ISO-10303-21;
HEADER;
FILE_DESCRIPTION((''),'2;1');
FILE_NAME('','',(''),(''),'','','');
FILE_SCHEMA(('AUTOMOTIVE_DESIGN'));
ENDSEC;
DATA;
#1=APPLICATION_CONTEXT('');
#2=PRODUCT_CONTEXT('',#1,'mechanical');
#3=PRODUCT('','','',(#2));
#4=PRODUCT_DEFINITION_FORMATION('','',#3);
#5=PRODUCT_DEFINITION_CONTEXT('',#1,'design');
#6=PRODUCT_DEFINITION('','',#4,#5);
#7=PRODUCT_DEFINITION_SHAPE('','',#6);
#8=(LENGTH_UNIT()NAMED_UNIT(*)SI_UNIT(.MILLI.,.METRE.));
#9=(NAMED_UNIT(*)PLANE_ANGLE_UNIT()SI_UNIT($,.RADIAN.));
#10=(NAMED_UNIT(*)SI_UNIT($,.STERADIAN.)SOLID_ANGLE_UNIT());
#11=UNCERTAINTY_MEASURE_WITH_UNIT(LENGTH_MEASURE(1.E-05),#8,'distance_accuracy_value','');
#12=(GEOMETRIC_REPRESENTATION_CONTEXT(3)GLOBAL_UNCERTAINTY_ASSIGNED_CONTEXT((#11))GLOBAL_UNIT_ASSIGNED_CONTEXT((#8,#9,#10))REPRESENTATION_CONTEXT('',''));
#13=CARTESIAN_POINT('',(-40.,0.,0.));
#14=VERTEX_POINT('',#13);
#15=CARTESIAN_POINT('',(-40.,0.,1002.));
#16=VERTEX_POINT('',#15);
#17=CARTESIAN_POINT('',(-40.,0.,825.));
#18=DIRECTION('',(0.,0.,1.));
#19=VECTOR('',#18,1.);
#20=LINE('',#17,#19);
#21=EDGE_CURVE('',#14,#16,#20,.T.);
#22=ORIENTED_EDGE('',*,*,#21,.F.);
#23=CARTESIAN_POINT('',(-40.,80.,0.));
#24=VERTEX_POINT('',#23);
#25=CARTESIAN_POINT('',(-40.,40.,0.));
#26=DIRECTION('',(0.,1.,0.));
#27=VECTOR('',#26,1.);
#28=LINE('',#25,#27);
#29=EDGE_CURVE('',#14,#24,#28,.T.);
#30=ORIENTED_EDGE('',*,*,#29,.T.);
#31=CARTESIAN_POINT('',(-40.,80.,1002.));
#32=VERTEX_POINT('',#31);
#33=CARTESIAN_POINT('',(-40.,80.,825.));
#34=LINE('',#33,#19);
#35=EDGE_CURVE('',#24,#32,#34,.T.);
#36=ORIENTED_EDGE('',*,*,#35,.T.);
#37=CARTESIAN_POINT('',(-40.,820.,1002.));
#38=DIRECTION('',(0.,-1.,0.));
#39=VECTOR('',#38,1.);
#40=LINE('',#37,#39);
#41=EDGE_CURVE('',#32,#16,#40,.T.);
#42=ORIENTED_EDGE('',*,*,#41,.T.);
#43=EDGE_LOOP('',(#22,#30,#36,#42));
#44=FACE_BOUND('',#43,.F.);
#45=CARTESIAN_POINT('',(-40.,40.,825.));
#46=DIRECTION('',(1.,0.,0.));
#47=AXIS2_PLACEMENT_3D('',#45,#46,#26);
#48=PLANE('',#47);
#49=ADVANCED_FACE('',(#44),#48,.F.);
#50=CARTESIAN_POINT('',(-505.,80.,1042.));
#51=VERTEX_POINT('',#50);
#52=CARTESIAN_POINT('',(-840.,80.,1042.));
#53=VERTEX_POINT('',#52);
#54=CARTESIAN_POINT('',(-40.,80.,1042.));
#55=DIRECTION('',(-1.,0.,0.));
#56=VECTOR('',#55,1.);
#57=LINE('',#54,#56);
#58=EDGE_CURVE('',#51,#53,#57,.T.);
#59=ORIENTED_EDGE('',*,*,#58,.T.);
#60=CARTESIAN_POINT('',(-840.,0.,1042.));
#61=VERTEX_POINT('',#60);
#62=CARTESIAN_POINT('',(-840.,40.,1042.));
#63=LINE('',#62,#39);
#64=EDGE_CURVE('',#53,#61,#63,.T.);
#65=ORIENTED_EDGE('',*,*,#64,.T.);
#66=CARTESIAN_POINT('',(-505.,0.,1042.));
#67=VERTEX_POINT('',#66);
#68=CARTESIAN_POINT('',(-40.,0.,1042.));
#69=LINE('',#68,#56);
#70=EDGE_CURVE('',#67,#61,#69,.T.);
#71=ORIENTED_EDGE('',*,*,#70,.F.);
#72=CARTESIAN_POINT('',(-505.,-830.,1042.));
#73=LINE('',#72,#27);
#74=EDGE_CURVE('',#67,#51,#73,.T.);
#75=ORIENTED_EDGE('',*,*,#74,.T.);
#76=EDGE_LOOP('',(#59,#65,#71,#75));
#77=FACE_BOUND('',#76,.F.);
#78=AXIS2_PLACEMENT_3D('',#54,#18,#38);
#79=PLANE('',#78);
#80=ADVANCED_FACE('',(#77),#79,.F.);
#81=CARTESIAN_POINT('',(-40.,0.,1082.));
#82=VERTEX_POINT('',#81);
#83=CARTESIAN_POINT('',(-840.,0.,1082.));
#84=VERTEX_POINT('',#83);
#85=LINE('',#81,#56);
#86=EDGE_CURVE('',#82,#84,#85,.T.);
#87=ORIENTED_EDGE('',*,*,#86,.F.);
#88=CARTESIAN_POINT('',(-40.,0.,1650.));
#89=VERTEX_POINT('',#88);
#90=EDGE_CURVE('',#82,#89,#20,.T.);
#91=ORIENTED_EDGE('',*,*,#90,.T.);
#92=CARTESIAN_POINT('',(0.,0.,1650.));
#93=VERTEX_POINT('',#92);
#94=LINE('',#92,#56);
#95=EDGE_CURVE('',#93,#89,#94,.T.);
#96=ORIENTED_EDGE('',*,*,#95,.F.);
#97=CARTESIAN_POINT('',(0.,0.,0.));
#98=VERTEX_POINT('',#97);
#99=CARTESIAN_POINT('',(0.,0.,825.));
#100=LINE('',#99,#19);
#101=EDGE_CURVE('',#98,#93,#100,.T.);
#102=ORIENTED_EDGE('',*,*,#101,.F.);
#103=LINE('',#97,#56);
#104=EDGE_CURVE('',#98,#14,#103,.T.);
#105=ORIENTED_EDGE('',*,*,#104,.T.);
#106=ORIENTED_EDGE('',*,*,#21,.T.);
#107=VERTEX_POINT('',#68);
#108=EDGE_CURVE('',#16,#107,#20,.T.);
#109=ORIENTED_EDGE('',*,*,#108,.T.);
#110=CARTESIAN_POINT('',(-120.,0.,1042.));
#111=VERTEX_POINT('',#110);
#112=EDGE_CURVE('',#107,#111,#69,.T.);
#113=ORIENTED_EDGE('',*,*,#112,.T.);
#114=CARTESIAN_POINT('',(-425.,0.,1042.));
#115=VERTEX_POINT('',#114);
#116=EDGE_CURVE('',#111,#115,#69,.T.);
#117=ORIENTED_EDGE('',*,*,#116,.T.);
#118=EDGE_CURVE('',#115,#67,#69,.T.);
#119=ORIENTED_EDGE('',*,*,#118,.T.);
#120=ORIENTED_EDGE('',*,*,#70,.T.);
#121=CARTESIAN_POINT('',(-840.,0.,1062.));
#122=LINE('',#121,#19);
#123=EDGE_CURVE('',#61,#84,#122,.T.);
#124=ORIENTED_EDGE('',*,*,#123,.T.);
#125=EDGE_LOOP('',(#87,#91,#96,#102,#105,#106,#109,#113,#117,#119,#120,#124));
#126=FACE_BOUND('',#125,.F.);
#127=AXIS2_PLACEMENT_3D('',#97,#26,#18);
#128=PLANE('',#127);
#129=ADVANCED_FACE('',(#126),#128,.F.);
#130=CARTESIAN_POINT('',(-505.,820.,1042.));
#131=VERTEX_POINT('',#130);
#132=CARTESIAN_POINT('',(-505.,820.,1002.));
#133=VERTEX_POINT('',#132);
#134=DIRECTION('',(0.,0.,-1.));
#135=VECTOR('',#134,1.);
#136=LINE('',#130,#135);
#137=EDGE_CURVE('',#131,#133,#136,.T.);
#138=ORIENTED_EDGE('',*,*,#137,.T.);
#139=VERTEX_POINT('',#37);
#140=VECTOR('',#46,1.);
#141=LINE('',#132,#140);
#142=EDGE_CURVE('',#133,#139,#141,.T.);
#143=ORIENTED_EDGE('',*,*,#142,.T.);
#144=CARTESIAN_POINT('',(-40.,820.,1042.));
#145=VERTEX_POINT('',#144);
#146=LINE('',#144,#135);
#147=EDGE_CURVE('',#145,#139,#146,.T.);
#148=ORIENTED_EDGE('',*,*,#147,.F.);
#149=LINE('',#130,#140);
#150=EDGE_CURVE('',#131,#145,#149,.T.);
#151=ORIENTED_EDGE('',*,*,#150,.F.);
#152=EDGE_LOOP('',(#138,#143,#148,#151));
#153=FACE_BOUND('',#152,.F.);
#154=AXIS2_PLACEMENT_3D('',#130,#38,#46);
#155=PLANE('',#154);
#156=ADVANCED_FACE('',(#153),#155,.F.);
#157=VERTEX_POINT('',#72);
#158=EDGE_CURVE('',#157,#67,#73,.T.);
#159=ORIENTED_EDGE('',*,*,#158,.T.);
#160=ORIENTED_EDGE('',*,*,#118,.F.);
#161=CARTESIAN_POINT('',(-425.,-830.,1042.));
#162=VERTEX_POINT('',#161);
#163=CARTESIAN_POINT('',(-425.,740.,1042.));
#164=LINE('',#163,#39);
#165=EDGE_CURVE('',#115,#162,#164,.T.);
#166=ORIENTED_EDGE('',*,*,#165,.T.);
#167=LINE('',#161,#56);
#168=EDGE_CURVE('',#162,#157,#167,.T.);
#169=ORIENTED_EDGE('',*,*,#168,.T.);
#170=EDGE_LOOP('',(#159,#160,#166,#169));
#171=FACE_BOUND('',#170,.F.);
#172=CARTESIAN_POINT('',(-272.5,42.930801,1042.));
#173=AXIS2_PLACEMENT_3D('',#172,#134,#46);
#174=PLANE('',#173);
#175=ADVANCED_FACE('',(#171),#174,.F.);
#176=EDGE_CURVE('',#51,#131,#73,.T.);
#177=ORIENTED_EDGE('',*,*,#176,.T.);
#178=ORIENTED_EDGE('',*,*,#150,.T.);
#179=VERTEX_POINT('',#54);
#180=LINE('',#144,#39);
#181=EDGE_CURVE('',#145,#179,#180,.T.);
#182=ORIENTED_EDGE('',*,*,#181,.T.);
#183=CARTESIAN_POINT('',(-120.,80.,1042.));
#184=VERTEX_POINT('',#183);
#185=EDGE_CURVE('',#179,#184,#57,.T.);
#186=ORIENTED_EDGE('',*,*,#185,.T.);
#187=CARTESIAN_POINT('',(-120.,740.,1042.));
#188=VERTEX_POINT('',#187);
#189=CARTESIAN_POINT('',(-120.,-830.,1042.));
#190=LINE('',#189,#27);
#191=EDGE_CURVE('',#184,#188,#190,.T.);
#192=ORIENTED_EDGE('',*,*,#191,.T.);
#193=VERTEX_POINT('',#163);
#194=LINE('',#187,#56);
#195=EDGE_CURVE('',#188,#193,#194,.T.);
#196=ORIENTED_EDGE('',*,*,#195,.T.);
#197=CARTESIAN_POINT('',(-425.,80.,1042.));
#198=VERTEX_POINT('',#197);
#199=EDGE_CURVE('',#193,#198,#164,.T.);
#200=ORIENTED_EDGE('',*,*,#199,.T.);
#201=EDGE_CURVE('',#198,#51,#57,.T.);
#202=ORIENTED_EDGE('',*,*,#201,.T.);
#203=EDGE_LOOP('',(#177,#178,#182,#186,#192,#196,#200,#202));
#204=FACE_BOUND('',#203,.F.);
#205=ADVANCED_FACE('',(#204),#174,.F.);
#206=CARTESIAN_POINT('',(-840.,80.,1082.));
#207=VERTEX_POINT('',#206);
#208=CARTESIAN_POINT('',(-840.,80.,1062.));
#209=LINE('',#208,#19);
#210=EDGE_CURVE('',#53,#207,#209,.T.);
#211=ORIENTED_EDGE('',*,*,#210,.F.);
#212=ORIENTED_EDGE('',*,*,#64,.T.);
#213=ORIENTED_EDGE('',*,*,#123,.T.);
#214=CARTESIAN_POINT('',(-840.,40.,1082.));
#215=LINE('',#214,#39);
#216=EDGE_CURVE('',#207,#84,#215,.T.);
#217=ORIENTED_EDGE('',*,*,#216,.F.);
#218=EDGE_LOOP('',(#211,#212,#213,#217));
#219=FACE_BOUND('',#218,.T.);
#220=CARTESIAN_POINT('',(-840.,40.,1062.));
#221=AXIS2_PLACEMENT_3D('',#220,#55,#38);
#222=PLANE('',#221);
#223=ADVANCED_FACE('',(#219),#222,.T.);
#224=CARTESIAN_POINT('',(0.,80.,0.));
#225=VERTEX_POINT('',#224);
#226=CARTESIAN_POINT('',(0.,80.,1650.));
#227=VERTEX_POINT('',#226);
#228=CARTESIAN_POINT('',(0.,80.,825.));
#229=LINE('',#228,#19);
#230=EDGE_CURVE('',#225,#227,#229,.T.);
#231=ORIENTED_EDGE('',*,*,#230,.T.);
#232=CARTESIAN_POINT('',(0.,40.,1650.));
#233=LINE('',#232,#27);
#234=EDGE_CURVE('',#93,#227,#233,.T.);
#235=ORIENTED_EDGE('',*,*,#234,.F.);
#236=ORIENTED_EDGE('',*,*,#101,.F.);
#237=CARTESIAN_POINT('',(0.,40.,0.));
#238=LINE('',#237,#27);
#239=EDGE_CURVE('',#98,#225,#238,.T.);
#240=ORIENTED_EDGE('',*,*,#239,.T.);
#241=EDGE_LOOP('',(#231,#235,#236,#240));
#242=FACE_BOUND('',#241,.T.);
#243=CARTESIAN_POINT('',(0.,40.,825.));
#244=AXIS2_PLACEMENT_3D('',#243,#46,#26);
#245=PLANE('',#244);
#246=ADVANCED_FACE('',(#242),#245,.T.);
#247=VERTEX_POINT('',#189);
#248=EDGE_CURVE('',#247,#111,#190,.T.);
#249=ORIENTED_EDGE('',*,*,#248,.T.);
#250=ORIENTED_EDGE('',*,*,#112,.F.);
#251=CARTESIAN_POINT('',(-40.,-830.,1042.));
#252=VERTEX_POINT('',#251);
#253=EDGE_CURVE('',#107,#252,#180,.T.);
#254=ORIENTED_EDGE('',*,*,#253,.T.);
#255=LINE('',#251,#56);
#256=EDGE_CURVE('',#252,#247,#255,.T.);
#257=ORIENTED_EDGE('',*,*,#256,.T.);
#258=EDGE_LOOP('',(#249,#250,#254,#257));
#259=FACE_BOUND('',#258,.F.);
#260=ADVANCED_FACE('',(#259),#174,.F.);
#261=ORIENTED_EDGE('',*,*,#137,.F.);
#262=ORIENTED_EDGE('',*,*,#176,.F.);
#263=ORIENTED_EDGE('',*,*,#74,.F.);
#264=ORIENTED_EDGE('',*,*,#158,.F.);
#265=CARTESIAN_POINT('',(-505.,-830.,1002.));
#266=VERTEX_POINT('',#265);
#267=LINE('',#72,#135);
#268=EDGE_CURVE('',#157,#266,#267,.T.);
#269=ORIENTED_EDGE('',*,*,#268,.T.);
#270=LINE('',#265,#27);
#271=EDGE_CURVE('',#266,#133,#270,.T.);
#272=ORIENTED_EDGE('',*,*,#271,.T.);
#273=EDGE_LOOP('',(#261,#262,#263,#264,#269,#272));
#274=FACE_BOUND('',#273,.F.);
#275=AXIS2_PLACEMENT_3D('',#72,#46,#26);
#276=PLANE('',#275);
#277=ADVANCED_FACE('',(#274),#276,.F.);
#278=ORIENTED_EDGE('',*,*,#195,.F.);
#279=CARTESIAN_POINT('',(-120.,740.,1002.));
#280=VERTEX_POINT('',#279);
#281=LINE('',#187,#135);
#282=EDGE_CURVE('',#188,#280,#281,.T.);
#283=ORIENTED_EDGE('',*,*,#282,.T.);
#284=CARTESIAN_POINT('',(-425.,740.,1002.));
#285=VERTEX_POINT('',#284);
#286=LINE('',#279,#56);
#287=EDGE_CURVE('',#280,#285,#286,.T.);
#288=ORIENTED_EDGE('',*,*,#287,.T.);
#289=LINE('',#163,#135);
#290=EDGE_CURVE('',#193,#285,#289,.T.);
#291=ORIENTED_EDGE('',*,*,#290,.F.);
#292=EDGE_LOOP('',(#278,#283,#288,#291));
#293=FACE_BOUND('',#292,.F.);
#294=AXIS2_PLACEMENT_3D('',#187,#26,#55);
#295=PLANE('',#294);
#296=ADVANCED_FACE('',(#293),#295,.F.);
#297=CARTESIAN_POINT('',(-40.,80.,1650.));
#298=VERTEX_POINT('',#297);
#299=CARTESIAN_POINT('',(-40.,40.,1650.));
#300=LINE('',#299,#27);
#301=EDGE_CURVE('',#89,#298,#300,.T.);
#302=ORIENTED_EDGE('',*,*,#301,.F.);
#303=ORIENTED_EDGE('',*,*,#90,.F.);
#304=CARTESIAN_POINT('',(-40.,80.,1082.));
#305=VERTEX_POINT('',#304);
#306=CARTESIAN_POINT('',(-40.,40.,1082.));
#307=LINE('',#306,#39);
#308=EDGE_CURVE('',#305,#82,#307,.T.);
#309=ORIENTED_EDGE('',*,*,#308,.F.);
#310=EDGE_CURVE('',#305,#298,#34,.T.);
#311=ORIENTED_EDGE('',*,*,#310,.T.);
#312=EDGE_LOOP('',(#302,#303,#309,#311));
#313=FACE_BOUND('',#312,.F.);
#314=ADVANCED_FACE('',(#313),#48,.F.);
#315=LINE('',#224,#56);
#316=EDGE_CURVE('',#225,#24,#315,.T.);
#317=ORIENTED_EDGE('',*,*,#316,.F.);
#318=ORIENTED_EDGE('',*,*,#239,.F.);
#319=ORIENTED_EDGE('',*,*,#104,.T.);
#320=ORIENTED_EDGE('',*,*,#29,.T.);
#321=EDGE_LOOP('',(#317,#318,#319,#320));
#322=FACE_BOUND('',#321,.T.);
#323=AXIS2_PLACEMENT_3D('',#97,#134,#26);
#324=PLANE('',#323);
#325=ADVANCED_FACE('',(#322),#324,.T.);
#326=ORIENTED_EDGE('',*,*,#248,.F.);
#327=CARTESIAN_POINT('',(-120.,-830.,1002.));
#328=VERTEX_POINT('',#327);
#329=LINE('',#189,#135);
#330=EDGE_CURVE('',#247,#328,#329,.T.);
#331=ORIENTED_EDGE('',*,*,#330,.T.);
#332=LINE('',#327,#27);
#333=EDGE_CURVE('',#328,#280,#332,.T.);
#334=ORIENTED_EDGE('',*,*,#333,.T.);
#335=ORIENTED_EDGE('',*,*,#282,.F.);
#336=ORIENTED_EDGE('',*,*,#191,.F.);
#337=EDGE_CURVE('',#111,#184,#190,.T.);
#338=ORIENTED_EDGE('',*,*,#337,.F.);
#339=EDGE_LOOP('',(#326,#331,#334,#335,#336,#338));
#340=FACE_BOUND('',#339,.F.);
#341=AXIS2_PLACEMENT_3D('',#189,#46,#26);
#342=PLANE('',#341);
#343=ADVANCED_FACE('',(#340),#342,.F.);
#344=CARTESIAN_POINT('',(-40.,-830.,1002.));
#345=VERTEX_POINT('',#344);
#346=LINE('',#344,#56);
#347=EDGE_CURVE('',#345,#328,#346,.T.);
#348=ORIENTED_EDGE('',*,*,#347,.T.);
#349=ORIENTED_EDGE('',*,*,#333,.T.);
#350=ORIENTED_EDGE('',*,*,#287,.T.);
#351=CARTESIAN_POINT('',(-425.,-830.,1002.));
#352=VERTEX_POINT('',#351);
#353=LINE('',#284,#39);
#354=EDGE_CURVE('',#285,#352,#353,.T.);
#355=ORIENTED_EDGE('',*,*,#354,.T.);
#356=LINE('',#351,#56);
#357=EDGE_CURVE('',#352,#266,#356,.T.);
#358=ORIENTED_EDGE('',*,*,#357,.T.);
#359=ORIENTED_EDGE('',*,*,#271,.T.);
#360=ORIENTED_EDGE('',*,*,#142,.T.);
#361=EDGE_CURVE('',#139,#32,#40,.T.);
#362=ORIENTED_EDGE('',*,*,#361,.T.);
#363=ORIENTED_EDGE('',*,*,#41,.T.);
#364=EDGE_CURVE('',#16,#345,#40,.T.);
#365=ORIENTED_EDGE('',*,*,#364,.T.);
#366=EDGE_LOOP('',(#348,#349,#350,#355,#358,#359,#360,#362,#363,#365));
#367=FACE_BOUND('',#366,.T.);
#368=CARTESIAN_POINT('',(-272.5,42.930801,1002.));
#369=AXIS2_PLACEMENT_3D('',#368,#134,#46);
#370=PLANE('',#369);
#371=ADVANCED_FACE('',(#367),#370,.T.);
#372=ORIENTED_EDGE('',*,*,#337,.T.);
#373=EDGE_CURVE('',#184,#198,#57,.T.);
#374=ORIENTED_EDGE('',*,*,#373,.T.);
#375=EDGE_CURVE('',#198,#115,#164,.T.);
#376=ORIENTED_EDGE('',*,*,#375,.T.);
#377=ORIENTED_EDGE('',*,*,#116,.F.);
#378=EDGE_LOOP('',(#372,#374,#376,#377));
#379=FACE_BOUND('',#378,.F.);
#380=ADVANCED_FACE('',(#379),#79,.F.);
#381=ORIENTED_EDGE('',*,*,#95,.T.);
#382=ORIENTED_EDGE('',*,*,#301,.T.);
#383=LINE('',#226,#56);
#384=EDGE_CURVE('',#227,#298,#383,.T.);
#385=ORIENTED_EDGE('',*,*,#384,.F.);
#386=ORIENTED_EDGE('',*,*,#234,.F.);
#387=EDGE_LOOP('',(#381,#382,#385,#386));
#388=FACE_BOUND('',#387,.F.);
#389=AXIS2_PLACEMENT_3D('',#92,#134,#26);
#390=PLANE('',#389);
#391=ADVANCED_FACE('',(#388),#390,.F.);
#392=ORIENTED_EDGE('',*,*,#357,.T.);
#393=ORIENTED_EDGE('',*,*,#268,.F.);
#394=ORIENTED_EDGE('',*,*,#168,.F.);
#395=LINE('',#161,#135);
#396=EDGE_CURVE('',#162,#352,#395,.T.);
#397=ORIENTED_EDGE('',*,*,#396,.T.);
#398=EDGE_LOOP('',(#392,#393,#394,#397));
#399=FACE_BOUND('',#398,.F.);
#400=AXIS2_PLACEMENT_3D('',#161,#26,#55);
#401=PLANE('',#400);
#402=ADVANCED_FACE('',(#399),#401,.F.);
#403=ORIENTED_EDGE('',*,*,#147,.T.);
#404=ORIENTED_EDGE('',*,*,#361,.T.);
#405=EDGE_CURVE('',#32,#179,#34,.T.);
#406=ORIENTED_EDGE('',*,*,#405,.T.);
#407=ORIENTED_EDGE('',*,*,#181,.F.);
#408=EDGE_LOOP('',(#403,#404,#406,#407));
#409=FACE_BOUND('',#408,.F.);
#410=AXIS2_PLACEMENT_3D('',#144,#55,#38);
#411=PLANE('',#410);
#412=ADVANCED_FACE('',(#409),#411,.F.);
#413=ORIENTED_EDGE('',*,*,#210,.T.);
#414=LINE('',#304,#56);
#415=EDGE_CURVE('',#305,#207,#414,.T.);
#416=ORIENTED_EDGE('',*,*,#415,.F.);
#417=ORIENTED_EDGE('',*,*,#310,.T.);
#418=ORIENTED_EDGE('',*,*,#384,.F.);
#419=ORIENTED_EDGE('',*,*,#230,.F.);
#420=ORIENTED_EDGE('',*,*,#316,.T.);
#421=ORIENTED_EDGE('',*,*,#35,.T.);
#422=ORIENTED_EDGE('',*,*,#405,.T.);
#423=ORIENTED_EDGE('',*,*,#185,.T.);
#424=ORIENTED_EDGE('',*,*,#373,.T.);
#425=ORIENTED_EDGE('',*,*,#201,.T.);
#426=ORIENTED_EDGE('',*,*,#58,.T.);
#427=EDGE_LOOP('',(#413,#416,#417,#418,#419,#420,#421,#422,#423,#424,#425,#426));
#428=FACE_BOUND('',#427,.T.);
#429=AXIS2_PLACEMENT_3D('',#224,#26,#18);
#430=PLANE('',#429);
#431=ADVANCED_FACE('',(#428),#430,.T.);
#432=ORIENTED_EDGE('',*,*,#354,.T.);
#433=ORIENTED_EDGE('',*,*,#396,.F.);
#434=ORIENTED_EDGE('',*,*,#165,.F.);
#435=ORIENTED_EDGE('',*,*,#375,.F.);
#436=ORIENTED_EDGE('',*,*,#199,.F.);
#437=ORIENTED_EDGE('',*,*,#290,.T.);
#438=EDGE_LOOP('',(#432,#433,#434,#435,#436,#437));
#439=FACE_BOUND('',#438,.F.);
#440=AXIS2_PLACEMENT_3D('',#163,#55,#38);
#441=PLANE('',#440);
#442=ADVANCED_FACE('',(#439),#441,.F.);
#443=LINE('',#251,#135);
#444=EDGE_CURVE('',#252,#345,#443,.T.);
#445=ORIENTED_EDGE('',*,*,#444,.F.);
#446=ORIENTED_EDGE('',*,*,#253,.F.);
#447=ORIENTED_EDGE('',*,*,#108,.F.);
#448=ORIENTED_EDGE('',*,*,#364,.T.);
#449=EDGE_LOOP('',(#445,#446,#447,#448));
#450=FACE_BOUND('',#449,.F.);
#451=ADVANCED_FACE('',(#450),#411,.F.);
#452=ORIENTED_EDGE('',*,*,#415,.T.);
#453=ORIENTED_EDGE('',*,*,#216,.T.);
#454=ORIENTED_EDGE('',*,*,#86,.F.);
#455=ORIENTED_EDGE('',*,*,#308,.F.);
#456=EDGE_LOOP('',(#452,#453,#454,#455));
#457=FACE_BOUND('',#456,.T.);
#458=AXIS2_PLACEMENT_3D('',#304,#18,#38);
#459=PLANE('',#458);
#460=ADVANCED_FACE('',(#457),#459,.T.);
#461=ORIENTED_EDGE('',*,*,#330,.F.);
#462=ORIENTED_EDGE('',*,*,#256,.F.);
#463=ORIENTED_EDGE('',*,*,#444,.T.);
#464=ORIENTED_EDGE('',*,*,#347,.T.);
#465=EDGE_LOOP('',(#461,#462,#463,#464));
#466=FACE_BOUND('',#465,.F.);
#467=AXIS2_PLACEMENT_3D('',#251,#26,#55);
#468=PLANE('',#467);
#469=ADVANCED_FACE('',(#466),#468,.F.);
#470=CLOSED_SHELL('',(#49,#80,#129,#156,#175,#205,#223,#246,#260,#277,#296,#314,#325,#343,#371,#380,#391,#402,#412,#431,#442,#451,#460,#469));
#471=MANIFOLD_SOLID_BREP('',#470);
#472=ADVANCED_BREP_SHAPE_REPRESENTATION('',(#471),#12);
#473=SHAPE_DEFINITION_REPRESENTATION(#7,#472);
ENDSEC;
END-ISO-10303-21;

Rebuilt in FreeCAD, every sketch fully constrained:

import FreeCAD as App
import Part
import Sketcher


def add_polygon(sketch, points):
    """Adds a closed chain of lines whose ends are joined by coincident constraints."""
    first, n = sketch.GeometryCount, len(points)
    for a, b in zip(points, points[1:] + points[:1]):
        sketch.addGeometry(Part.LineSegment(App.Vector(*a, 0), App.Vector(*b, 0)), False)
    for i in range(n):
        sketch.addConstraint(Sketcher.Constraint("Coincident", first + i, 2, first + (i + 1) % n, 1))

doc = App.newDocument("Part")
body = doc.addObject("PartDesign::Body", "Body")

# Sketch on YZ plane
sketch1 = doc.addObject("Sketcher::SketchObject", "Sketch")
body.addObject(sketch1)
sketch1.AttachmentSupport = (doc.YZ_Plane, [""])
sketch1.MapMode = "FlatFace"
add_polygon(sketch1, [(0, 1650), (0, 0), (80, 0), (80, 1650)])  # lines 0-3
sketch1.addConstraint([
    Sketcher.Constraint("Vertical", 0),
    Sketcher.Constraint("Horizontal", 1),
    Sketcher.Constraint("Vertical", 2),
    Sketcher.Constraint("Horizontal", 3),
    Sketcher.Constraint("Coincident", 0, 2, -1, 1),
    Sketcher.Constraint("DistanceX", 1, 1, 1, 2, 80.0),
    Sketcher.Constraint("DistanceY", 0, 2, 0, 1, 1650.0),
])
pad1 = doc.addObject("PartDesign::Pad", "Pad")
body.addObject(pad1)
pad1.Profile = sketch1
pad1.Length = 40
pad1.Reversed = True

# Sketch on YZ plane
sketch2 = doc.addObject("Sketcher::SketchObject", "Sketch001")
body.addObject(sketch2)
sketch2.AttachmentSupport = (doc.YZ_Plane, [""])
sketch2.MapMode = "FlatFace"
sketch2.AttachmentOffset = App.Placement(App.Vector(0, 0, -40), App.Rotation())
add_polygon(sketch2, [(80, 1082), (80, 1042), (0, 1042), (0, 1082)])  # lines 0-3
sketch2.addConstraint([
    Sketcher.Constraint("Vertical", 0),
    Sketcher.Constraint("Horizontal", 1),
    Sketcher.Constraint("Vertical", 2),
    Sketcher.Constraint("Horizontal", 3),
    Sketcher.Constraint("PointOnObject", 1, 2, -2),
    Sketcher.Constraint("DistanceX", 1, 2, 1, 1, 80.0),
    Sketcher.Constraint("DistanceY", 0, 2, 0, 1, 40.0),
    Sketcher.Constraint("DistanceY", -1, 1, 0, 2, 1042.0),
])
pad2 = doc.addObject("PartDesign::Pad", "Pad001")
body.addObject(pad2)
pad2.Profile = sketch2
pad2.Length = 800
pad2.Reversed = True

# Sketch on XY plane
sketch3 = doc.addObject("Sketcher::SketchObject", "Sketch002")
body.addObject(sketch3)
sketch3.AttachmentSupport = (doc.XY_Plane, [""])
sketch3.MapMode = "FlatFace"
sketch3.AttachmentOffset = App.Placement(App.Vector(0, 0, 1042), App.Rotation())
add_polygon(sketch3, [(-40, 820), (-40, -830), (-120, -830), (-120, 740), (-425, 740), (-425, -830), (-505, -830), (-505, 820)])  # lines 0-7
sketch3.addConstraint([
    Sketcher.Constraint("Vertical", 0),
    Sketcher.Constraint("Horizontal", 1),
    Sketcher.Constraint("Vertical", 2),
    Sketcher.Constraint("Horizontal", 3),
    Sketcher.Constraint("Vertical", 4),
    Sketcher.Constraint("Horizontal", 5),
    Sketcher.Constraint("Vertical", 6),
    Sketcher.Constraint("Horizontal", 7),
    Sketcher.Constraint("Horizontal", 1, 2, 4, 2),
    Sketcher.Constraint("Equal", 1, 5),
    Sketcher.Constraint("DistanceX", 1, 2, 1, 1, 80.0),
    Sketcher.Constraint("DistanceX", 3, 2, 3, 1, 305.0),
    Sketcher.Constraint("DistanceY", 0, 2, 0, 1, 1650.0),
    Sketcher.Constraint("DistanceY", 2, 1, 2, 2, 1570.0),
    Sketcher.Constraint("DistanceX", 0, 2, -1, 1, 40.0),
    Sketcher.Constraint("DistanceY", 0, 2, -1, 1, 830.0),
])
pad3 = doc.addObject("PartDesign::Pad", "Pad002")
body.addObject(pad3)
pad3.Profile = sketch3
pad3.Length = 40
pad3.Reversed = True

doc.recompute()
